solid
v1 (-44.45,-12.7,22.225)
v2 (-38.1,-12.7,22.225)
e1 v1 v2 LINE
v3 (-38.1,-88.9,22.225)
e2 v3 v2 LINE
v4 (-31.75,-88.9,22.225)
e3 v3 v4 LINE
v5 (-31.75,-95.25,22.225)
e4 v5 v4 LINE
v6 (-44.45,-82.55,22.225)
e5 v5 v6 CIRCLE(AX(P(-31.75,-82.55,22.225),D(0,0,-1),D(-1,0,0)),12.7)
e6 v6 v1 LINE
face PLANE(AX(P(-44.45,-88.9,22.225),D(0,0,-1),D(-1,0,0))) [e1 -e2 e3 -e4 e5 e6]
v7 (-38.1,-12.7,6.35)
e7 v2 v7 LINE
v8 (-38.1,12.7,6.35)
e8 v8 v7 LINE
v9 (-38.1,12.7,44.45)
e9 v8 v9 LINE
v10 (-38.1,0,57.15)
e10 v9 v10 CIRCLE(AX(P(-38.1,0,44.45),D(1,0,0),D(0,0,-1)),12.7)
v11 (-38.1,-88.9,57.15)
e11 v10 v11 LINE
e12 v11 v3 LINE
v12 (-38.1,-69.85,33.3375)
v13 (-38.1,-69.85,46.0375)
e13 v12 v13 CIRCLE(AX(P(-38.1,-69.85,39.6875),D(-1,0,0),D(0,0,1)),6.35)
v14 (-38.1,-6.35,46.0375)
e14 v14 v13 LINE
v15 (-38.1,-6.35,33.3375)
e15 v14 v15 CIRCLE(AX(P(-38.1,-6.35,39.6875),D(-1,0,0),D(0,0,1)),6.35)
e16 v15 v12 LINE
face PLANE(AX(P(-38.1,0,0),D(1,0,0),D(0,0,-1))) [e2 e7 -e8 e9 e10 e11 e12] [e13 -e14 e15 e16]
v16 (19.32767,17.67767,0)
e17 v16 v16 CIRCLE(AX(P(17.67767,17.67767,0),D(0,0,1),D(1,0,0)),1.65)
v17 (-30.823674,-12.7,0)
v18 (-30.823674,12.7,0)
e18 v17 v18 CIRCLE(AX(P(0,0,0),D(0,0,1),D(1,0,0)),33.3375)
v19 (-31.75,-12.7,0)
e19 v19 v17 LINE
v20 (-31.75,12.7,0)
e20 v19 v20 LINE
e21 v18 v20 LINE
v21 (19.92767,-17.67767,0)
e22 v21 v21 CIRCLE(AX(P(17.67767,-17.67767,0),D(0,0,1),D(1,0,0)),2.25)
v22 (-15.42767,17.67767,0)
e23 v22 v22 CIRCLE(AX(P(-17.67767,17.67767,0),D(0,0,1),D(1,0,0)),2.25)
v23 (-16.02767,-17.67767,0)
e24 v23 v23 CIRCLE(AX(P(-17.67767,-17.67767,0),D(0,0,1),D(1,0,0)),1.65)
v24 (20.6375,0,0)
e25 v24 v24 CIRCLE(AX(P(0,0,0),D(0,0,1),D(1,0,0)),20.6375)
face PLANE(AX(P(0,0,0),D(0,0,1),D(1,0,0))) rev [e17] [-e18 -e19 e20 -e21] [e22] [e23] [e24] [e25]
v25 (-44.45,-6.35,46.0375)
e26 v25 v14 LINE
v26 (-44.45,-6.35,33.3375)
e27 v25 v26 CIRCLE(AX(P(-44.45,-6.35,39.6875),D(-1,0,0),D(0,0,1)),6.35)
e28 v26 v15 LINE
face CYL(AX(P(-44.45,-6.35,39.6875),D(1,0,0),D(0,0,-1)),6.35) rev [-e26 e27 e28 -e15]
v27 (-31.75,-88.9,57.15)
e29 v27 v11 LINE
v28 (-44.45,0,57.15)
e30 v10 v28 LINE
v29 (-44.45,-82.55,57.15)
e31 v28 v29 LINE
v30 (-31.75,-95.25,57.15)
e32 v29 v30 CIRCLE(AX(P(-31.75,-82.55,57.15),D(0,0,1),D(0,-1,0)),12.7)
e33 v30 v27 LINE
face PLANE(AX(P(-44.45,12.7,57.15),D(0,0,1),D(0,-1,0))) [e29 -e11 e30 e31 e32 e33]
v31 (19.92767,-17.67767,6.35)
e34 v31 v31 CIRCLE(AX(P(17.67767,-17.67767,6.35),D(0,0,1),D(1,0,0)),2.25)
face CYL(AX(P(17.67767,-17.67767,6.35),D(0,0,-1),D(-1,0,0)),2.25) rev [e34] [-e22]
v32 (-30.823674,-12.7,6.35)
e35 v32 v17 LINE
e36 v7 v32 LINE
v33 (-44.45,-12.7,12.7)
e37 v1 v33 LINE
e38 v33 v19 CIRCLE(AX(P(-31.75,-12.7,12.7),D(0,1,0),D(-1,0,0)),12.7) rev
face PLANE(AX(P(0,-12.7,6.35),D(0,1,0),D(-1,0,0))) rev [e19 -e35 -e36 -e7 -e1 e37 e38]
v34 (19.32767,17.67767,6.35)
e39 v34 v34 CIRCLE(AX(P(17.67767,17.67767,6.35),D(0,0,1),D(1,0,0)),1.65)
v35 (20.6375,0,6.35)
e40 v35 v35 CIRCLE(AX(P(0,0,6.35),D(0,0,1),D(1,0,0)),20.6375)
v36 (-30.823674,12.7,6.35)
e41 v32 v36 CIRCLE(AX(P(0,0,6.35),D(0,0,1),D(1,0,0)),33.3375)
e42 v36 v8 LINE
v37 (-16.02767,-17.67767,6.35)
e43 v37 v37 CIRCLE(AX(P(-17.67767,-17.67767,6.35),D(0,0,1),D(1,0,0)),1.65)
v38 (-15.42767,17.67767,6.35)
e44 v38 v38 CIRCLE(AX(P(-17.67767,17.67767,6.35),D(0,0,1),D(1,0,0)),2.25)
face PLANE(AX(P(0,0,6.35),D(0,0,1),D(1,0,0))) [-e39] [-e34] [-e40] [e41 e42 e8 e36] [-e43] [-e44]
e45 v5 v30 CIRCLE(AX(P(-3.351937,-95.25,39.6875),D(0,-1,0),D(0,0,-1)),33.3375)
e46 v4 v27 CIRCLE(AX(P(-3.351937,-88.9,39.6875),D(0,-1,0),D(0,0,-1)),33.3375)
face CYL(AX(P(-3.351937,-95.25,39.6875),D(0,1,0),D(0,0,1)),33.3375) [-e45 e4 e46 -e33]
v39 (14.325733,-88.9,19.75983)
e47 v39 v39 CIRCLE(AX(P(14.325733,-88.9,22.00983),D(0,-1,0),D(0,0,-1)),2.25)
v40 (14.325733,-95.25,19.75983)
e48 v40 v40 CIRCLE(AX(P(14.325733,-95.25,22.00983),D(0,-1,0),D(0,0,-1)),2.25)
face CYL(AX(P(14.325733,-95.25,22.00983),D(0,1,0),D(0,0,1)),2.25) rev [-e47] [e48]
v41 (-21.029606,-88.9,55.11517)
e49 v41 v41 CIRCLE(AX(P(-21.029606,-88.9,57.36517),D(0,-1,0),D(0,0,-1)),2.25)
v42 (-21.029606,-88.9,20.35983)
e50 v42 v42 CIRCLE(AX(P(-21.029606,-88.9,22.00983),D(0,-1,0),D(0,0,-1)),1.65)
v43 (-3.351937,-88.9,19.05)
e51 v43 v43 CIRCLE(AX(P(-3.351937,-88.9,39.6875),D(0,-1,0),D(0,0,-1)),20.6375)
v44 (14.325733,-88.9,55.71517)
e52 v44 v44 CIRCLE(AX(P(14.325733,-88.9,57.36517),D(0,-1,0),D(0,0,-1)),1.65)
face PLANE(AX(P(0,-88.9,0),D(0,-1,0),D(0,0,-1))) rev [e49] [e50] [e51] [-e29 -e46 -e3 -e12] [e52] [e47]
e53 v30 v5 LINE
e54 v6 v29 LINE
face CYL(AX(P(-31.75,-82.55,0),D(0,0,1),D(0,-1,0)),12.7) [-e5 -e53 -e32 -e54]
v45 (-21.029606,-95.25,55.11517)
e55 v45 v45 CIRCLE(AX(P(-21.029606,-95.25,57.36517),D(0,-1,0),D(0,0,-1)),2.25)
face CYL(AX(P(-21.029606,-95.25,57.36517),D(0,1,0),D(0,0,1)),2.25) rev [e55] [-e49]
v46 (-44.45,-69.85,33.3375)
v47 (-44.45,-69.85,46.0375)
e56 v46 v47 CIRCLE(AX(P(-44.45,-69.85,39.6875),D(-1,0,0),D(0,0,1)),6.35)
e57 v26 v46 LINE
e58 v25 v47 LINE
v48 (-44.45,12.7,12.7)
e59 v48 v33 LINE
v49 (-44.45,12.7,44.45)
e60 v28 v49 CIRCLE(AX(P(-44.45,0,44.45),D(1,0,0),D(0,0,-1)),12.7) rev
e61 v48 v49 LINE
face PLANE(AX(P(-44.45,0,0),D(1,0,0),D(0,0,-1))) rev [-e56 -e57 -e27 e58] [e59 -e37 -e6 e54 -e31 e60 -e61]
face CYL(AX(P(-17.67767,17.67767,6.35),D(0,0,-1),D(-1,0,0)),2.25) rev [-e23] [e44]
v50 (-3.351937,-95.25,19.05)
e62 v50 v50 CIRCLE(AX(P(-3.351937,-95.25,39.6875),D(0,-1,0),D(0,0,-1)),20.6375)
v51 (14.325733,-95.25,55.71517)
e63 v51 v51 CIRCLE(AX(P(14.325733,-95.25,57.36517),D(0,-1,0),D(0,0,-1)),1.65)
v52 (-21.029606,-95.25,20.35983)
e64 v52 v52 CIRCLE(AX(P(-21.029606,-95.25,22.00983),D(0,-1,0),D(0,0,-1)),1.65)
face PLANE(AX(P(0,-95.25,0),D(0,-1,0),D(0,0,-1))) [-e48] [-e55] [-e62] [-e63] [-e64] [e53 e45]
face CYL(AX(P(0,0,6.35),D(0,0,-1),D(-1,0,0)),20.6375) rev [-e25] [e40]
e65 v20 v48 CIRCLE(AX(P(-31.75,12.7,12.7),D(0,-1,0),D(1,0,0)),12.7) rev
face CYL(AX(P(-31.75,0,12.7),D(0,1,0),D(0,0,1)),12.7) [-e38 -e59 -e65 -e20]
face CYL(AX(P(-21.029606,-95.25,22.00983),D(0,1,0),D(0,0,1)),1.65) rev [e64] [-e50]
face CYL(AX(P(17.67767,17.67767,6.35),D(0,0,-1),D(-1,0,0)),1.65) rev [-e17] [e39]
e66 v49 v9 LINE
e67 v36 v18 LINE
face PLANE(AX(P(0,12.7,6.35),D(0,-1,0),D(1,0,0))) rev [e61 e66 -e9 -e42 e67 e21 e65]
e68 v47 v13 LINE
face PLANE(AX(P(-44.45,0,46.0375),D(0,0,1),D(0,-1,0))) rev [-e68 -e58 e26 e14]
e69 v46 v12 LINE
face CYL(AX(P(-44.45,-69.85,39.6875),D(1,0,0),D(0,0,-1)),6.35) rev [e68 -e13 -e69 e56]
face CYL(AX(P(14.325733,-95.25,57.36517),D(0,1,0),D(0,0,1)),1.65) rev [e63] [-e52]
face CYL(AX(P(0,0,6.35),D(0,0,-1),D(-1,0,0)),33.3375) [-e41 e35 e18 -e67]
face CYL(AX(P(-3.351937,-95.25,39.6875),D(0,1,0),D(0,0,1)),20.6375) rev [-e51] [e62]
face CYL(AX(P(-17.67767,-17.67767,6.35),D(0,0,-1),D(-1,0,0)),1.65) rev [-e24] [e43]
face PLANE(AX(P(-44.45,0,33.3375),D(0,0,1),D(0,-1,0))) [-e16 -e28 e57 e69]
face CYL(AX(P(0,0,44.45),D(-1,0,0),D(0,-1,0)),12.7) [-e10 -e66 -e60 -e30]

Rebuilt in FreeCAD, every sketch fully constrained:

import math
import FreeCAD as App
import Part
import Sketcher

V = App.Vector
Q = App.Units.Quantity


def edges_at(feature, points):
    """Names of the edges that pass closest to the given points."""
    edges = feature.Shape.Edges
    near = lambda p: min(range(len(edges)), key=lambda i: edges[i].distToShape(Part.Vertex(*p))[0])
    return sorted({f"Edge{near(p) + 1}" for p in points})

doc = App.newDocument("Part")
body = doc.addObject("PartDesign::Body", "Body")

# Sketch on XY plane
sketch1 = body.newObject("Sketcher::SketchObject", "Sketch")
sketch1.AttachmentSupport = (doc.getObject("XY_Plane"), [""])
sketch1.MapMode = "FlatFace"
sketch1.addGeometry([
    Part.LineSegment(V(-30.823674, 12.7, 0), V(-38.1, 12.7, 0)),  # 0
    Part.LineSegment(V(-38.1, 12.7, 0), V(-38.1, -12.7, 0)),  # 1
    Part.LineSegment(V(-38.1, -12.7, 0), V(-30.823674, -12.7, 0)),  # 2
    Part.ArcOfCircle(Part.Circle(V(0, 0, 0), V(0, 0, 1), 33.3375), math.radians(-157.607312), math.radians(157.607312)),  # 3
    Part.Circle(V(-17.67767, -17.67767, 0), V(0, 0, 1), 1.65),  # 4
    Part.Circle(V(17.67767, -17.67767, 0), V(0, 0, 1), 2.25),  # 5
    Part.Circle(V(-17.67767, 17.67767, 0), V(0, 0, 1), 2.25),  # 6
    Part.Circle(V(0, 0, 0), V(0, 0, 1), 20.6375),  # 7
    Part.Circle(V(17.67767, 17.67767, 0), V(0, 0, 1), 1.65),  # 8
], False)
sketch1.addConstraint([
    Sketcher.Constraint("Coincident", 0, 2, 1, 1),
    Sketcher.Constraint("Coincident", 1, 2, 2, 1),
    Sketcher.Constraint("Coincident", 2, 2, 3, 1),
    Sketcher.Constraint("Coincident", 3, 2, 0, 1),
    Sketcher.Constraint("Horizontal", 0),
    Sketcher.Constraint("Vertical", 1),
    Sketcher.Constraint("Horizontal", 2),
    Sketcher.Constraint("Coincident", 3, 3, -1, 1),
    Sketcher.Constraint("Coincident", 7, 3, -1, 1),
    Sketcher.Constraint("Equal", 5, 6),
    Sketcher.Constraint("Equal", 4, 8),
    Sketcher.Constraint("Symmetric", 5, 3, 6, 3, -1, 1),
    Sketcher.Constraint("Symmetric", 4, 3, 8, 3, -1, 1),
    Sketcher.Constraint("Symmetric", 4, 3, 5, 3, -2),
    Sketcher.Constraint("Vertical", 2, 2, 3, 2),
    Sketcher.Constraint("DistanceY", 1, 2, 1, 1, Q("1 in")),
    Sketcher.Constraint("Diameter", 7, Q("1.625 in")),
    Sketcher.Constraint("Radius", 3, Q("1.3125 in")),
    Sketcher.Constraint("DistanceX", 0, 2, -1, 1, Q("1.5 in")),
    Sketcher.Constraint("Diameter", 4, 3.3),
    Sketcher.Constraint("Diameter", 5, 4.5),
    Sketcher.Constraint("DistanceX", 4, 3, -1, 1, 17.67767),
    Sketcher.Constraint("DistanceY", 4, 3, -1, 1, 17.67767),
])
pad1 = body.newObject("PartDesign::Pad", "Pad")
pad1.Profile = sketch1
pad1.Length = Q("0.25 in")

# Sketch on YZ plane
sketch2 = body.newObject("Sketcher::SketchObject", "Sketch001")
sketch2.AttachmentSupport = (doc.getObject("YZ_Plane"), [""])
sketch2.MapMode = "FlatFace"
sketch2.AttachmentOffset = App.Placement(V(0, 0, -1.5 * 25.4), App.Rotation())
sketch2.addGeometry([
    Part.LineSegment(V(12.7, 57.15, 0), V(12.7, 0, 0)),  # 0
    Part.LineSegment(V(12.7, 0, 0), V(-12.7, 0, 0)),  # 1
    Part.LineSegment(V(-12.7, 0, 0), V(-12.7, 22.225, 0)),  # 2
    Part.LineSegment(V(-12.7, 22.225, 0), V(-88.9, 22.225, 0)),  # 3
    Part.LineSegment(V(-88.9, 22.225, 0), V(-88.9, 57.15, 0)),  # 4
    Part.LineSegment(V(-88.9, 57.15, 0), V(12.7, 57.15, 0)),  # 5
    Part.LineSegment(V(-6.35, 46.0375, 0), V(-69.85, 46.0375, 0)),  # 6
    Part.ArcOfCircle(Part.Circle(V(-69.85, 39.6875, 0), V(0, 0, 1), 6.35), math.radians(90), math.radians(270)),  # 7
    Part.LineSegment(V(-69.85, 33.3375, 0), V(-6.35, 33.3375, 0)),  # 8
    Part.ArcOfCircle(Part.Circle(V(-6.35, 39.6875, 0), V(0, 0, 1), 6.35), math.radians(-90), math.radians(90)),  # 9
], False)
sketch2.addConstraint([
    Sketcher.Constraint("Coincident", 0, 2, 1, 1),
    Sketcher.Constraint("Coincident", 1, 2, 2, 1),
    Sketcher.Constraint("Coincident", 2, 2, 3, 1),
    Sketcher.Constraint("Coincident", 3, 2, 4, 1),
    Sketcher.Constraint("Coincident", 4, 2, 5, 1),
    Sketcher.Constraint("Coincident", 5, 2, 0, 1),
    Sketcher.Constraint("Tangent", 6, 2, 7, 1),
    Sketcher.Constraint("Tangent", 7, 2, 8, 1),
    Sketcher.Constraint("Tangent", 8, 2, 9, 1),
    Sketcher.Constraint("Tangent", 9, 2, 6, 1),
    Sketcher.Constraint("Vertical", 0),
    Sketcher.Constraint("Horizontal", 1),
    Sketcher.Constraint("Vertical", 2),
    Sketcher.Constraint("Horizontal", 3),
    Sketcher.Constraint("Vertical", 4),
    Sketcher.Constraint("Horizontal", 5),
    Sketcher.Constraint("Horizontal", 6),
    Sketcher.Constraint("Horizontal", 8),
    Sketcher.Constraint("Symmetric", 0, 2, 1, 2, -1, 1),
    Sketcher.Constraint("DistanceX", 1, 2, 1, 1, Q("1 in")),
    Sketcher.Constraint("DistanceX", 3, 2, 3, 1, Q("3 in")),
    Sketcher.Constraint("Radius", 7, Q("0.25 in")),
    Sketcher.Constraint("DistanceX", 6, 2, 6, 1, Q("2.5 in")),
    Sketcher.Constraint("DistanceY", 0, 2, 0, 1, Q("2.25 in")),
    Sketcher.Constraint("DistanceY", 2, 1, 2, 2, Q("0.875 in")),
    Sketcher.Constraint("DistanceX", 7, 3, -1, 1, Q("2.75 in")),
    Sketcher.Constraint("DistanceY", -1, 1, 7, 3, Q("1.5625 in")),
])
pad2 = body.newObject("PartDesign::Pad", "Pad001")
pad2.Profile = sketch2
pad2.Length = Q("0.25 in")
pad2.Reversed = True

# Sketch on XZ plane
sketch3 = body.newObject("Sketcher::SketchObject", "Sketch002")
sketch3.AttachmentSupport = (doc.getObject("XZ_Plane"), [""])
sketch3.MapMode = "FlatFace"
sketch3.AttachmentOffset = App.Placement(V(0, 0, 3.5 * 25.4), App.Rotation())
sketch3.addGeometry([
    Part.LineSegment(V(-31.75, 57.15, 0), V(-44.45, 57.15, 0)),  # 0
    Part.LineSegment(V(-44.45, 57.15, 0), V(-44.45, 22.225, 0)),  # 1
    Part.LineSegment(V(-44.45, 22.225, 0), V(-31.75, 22.225, 0)),  # 2
    Part.ArcOfCircle(Part.Circle(V(-3.351937, 39.6875, 0), V(0, 0, 1), 33.3375), math.radians(-148.411864), math.radians(148.411864)),  # 3
    Part.Circle(V(-3.351937, 39.6875, 0), V(0, 0, 1), 20.6375),  # 4
    Part.Circle(V(-21.029606, 22.00983, 0), V(0, 0, 1), 1.65),  # 5
    Part.Circle(V(14.325733, 57.36517, 0), V(0, 0, 1), 1.65),  # 6
    Part.Circle(V(-21.029606, 57.36517, 0), V(0, 0, 1), 2.25),  # 7
    Part.Circle(V(14.325733, 22.00983, 0), V(0, 0, 1), 2.25),  # 8
], False)
sketch3.addConstraint([
    Sketcher.Constraint("Coincident", 0, 2, 1, 1),
    Sketcher.Constraint("Coincident", 1, 2, 2, 1),
    Sketcher.Constraint("Coincident", 2, 2, 3, 1),
    Sketcher.Constraint("Coincident", 3, 2, 0, 1),
    Sketcher.Constraint("Horizontal", 0),
    Sketcher.Constraint("Vertical", 1),
    Sketcher.Constraint("Horizontal", 2),
    Sketcher.Constraint("Coincident", 4, 3, 3, 3),
    Sketcher.Constraint("Equal", 5, 6),
    Sketcher.Constraint("Equal", 7, 8),
    Sketcher.Constraint("Horizontal", 6, 3, 7, 3),
    Sketcher.Constraint("Horizontal", 5, 3, 8, 3),
    Sketcher.Constraint("Vertical", 5, 3, 7, 3),
    Sketcher.Constraint("Vertical", 6, 3, 8, 3),
    Sketcher.Constraint("Vertical", 2, 2, 3, 2),
    Sketcher.Constraint("Diameter", 4, Q("1.625 in")),
    Sketcher.Constraint("DistanceX", 0, 2, 0, 1, Q("0.5 in")),
    Sketcher.Constraint("Radius", 3, Q("1.3125 in")),
    Sketcher.Constraint("Diameter", 5, 3.3),
    Sketcher.Constraint("Diameter", 7, 4.5),
    Sketcher.Constraint("DistanceY", 1, 2, 1, 1, Q("1.375 in")),
    Sketcher.Constraint("DistanceX", 0, 2, -1, 1, Q("1.75 in")),
    Sketcher.Constraint("DistanceY", -1, 1, 0, 2, Q("2.25 in")),
    Sketcher.Constraint("DistanceY", -1, 1, 5, 3, 22.00983),
    Sketcher.Constraint("DistanceY", -1, 1, 6, 3, 57.36517),
    Sketcher.Constraint("DistanceX", 5, 3, 3, 3, 17.67767),
    Sketcher.Constraint("DistanceX", 3, 3, 6, 3, 17.67767),
])
pad3 = body.newObject("PartDesign::Pad", "Pad002")
pad3.Profile = sketch3
pad3.Length = Q("0.25 in")
doc.recompute()

fillet = body.newObject("PartDesign::Fillet", "Fillet")
fillet.Base = (pad3, edges_at(pad3, [(-44.45, 0, 0)]))
fillet.Radius = Q("0.5 in")
doc.recompute()

fillet2 = body.newObject("PartDesign::Fillet", "Fillet001")
fillet2.Base = (fillet, edges_at(fillet, [(-44.45, -95.25, 39.688)]))
fillet2.Radius = Q("0.5 in")
doc.recompute()

fillet3 = body.newObject("PartDesign::Fillet", "Fillet002")
fillet3.Base = (fillet2, edges_at(fillet2, [(-41.275, 12.7, 57.15)]))
fillet3.Radius = Q("0.5 in")

doc.recompute()
